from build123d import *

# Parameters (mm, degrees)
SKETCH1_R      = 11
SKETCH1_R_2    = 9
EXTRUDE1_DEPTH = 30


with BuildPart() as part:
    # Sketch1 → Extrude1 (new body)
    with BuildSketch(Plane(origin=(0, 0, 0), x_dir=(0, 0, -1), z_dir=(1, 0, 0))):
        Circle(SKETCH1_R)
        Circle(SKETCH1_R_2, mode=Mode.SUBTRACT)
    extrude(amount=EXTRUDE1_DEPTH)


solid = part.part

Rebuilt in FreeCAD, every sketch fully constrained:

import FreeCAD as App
import Part
import Sketcher
from FreeCAD import Vector
Q = App.Units.Quantity

doc = App.newDocument("Part")
params = doc.addObject("Spreadsheet::Sheet", "Params")
for row, (alias, value) in enumerate([
    ("sketch1_diameter", "22 mm"),
    ("sketch1_diameter2", "18 mm"),
    ("pad1_length", "30 mm"),
], start=1):
    params.set(f"A{row}", alias)
    params.set(f"B{row}", "=" + value)
    params.setAlias(f"B{row}", alias)

body = doc.addObject("PartDesign::Body", "Body")

sketch1 = doc.addObject("Sketcher::SketchObject", "Sketch")
body.addObject(sketch1)
sketch1.AttachmentSupport = (doc.YZ_Plane, [""])
sketch1.MapMode = "FlatFace"
sketch1.addGeometry([
    Part.Circle(Vector(0, 0, 0), Vector(0, 0, 1), 11),
    Part.Circle(Vector(0, 0, 0), Vector(0, 0, 1), 9),
], False)
sketch1.addConstraint([
    Sketcher.Constraint("Coincident", 0, 3, -1, 1),
    Sketcher.Constraint("Coincident", 1, 3, -1, 1),
    Sketcher.Constraint("Diameter", 0, Q("22 mm")),
    Sketcher.Constraint("Diameter", 1, Q("18 mm")),
])
sketch1.setExpression("Constraints[2]", "Params.sketch1_diameter")
sketch1.setExpression("Constraints[3]", "Params.sketch1_diameter2")
pad1 = doc.addObject("PartDesign::Pad", "Pad")
body.addObject(pad1)
pad1.Profile = sketch1
pad1.setExpression("Length", "Params.pad1_length")

doc.recompute()
